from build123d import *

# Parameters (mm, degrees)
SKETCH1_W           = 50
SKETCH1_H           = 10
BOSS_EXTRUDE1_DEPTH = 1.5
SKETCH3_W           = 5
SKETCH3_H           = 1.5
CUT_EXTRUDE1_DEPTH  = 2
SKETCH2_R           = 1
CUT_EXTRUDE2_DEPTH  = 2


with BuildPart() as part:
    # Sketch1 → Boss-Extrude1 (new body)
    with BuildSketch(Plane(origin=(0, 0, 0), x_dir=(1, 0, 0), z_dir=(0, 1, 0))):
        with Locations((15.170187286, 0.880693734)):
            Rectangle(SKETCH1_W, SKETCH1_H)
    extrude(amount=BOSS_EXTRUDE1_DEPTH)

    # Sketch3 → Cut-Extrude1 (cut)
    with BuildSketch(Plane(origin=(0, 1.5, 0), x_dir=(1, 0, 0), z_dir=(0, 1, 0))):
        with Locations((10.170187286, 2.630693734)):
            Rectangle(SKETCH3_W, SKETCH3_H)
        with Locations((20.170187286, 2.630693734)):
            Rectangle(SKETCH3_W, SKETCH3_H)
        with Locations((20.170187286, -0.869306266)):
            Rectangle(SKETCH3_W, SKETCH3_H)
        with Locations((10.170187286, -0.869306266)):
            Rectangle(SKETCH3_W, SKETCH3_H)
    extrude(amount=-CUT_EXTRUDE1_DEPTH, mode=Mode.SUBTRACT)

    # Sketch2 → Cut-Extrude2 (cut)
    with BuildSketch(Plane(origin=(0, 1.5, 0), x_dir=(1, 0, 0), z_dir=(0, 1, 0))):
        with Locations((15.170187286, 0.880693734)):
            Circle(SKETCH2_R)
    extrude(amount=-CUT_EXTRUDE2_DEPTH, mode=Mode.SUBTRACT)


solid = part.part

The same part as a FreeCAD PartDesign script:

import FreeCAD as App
import Part
import Sketcher
Q = App.Units.Quantity

doc = App.newDocument("Part")
body = doc.addObject("PartDesign::Body", "Body")

sketch1 = body.newObject("Sketcher::SketchObject", "Sketch")
sketch1.AttachmentSupport = (doc.getObject("XZ_Plane"), [""])
sketch1.MapMode = "FlatFace"
sketch1.addGeometry(Part.LineSegment(App.Vector(-10, -6, 0), App.Vector(-10, 4, 0)), False)
sketch1.addGeometry(Part.LineSegment(App.Vector(-10, 4, 0), App.Vector(40, 4, 0)), False)
sketch1.addGeometry(Part.LineSegment(App.Vector(40, 4, 0), App.Vector(40, -6, 0)), False)
sketch1.addGeometry(Part.LineSegment(App.Vector(40, -6, 0), App.Vector(-10, -6, 0)), False)
sketch1.addConstraint(Sketcher.Constraint("Coincident", 0, 2, 1, 1))
sketch1.addConstraint(Sketcher.Constraint("Coincident", 1, 2, 2, 1))
sketch1.addConstraint(Sketcher.Constraint("Coincident", 2, 2, 3, 1))
sketch1.addConstraint(Sketcher.Constraint("Coincident", 3, 2, 0, 1))
sketch1.addConstraint(Sketcher.Constraint("Vertical", 0))
sketch1.addConstraint(Sketcher.Constraint("Horizontal", 1))
sketch1.addConstraint(Sketcher.Constraint("Vertical", 2))
sketch1.addConstraint(Sketcher.Constraint("Horizontal", 3))
sketch1.addConstraint(Sketcher.Constraint("DistanceX", 1, 1, 1, 2, Q("50 mm")))
sketch1.addConstraint(Sketcher.Constraint("DistanceY", 0, 1, 0, 2, Q("10 mm")))
sketch1.addConstraint(Sketcher.Constraint("DistanceX", 0, 2, -1, 1, Q("9.829813 mm")))
sketch1.addConstraint(Sketcher.Constraint("DistanceY", -1, 1, 0, 2, Q("4.119306 mm")))
pad1 = body.newObject("PartDesign::Pad", "Pad")
pad1.Profile = sketch1
pad1.Length = 1.5
pad1.Reversed = True

sketch2 = body.newObject("Sketcher::SketchObject", "Sketch001")
sketch2.AttachmentSupport = (doc.getObject("XZ_Plane"), [""])
sketch2.MapMode = "FlatFace"
sketch2.AttachmentOffset = App.Placement(App.Vector(0, 0, -1.5), App.Rotation())
sketch2.addGeometry(Part.LineSegment(App.Vector(7.7, -3.4, 0), App.Vector(7.7, -1.9, 0)), False)
sketch2.addGeometry(Part.LineSegment(App.Vector(7.7, -1.9, 0), App.Vector(12.7, -1.9, 0)), False)
sketch2.addGeometry(Part.LineSegment(App.Vector(12.7, -1.9, 0), App.Vector(12.7, -3.4, 0)), False)
sketch2.addGeometry(Part.LineSegment(App.Vector(12.7, -3.4, 0), App.Vector(7.7, -3.4, 0)), False)
sketch2.addGeometry(Part.LineSegment(App.Vector(17.7, -3.4, 0), App.Vector(17.7, -1.9, 0)), False)
sketch2.addGeometry(Part.LineSegment(App.Vector(17.7, -1.9, 0), App.Vector(22.7, -1.9, 0)), False)
sketch2.addGeometry(Part.LineSegment(App.Vector(22.7, -1.9, 0), App.Vector(22.7, -3.4, 0)), False)
sketch2.addGeometry(Part.LineSegment(App.Vector(22.7, -3.4, 0), App.Vector(17.7, -3.4, 0)), False)
sketch2.addGeometry(Part.LineSegment(App.Vector(17.7, 0.1, 0), App.Vector(17.7, 1.6, 0)), False)
sketch2.addGeometry(Part.LineSegment(App.Vector(17.7, 1.6, 0), App.Vector(22.7, 1.6, 0)), False)
sketch2.addGeometry(Part.LineSegment(App.Vector(22.7, 1.6, 0), App.Vector(22.7, 0.1, 0)), False)
sketch2.addGeometry(Part.LineSegment(App.Vector(22.7, 0.1, 0), App.Vector(17.7, 0.1, 0)), False)
sketch2.addGeometry(Part.LineSegment(App.Vector(7.7, 0.1, 0), App.Vector(7.7, 1.6, 0)), False)
sketch2.addGeometry(Part.LineSegment(App.Vector(7.7, 1.6, 0), App.Vector(12.7, 1.6, 0)), False)
sketch2.addGeometry(Part.LineSegment(App.Vector(12.7, 1.6, 0), App.Vector(12.7, 0.1, 0)), False)
sketch2.addGeometry(Part.LineSegment(App.Vector(12.7, 0.1, 0), App.Vector(7.7, 0.1, 0)), False)
sketch2.addConstraint(Sketcher.Constraint("Coincident", 0, 2, 1, 1))
sketch2.addConstraint(Sketcher.Constraint("Coincident", 1, 2, 2, 1))
sketch2.addConstraint(Sketcher.Constraint("Coincident", 2, 2, 3, 1))
sketch2.addConstraint(Sketcher.Constraint("Coincident", 3, 2, 0, 1))
sketch2.addConstraint(Sketcher.Constraint("Coincident", 4, 2, 5, 1))
sketch2.addConstraint(Sketcher.Constraint("Coincident", 5, 2, 6, 1))
sketch2.addConstraint(Sketcher.Constraint("Coincident", 6, 2, 7, 1))
sketch2.addConstraint(Sketcher.Constraint("Coincident", 7, 2, 4, 1))
sketch2.addConstraint(Sketcher.Constraint("Coincident", 8, 2, 9, 1))
sketch2.addConstraint(Sketcher.Constraint("Coincident", 9, 2, 10, 1))
sketch2.addConstraint(Sketcher.Constraint("Coincident", 10, 2, 11, 1))
sketch2.addConstraint(Sketcher.Constraint("Coincident", 11, 2, 8, 1))
sketch2.addConstraint(Sketcher.Constraint("Coincident", 12, 2, 13, 1))
sketch2.addConstraint(Sketcher.Constraint("Coincident", 13, 2, 14, 1))
sketch2.addConstraint(Sketcher.Constraint("Coincident", 14, 2, 15, 1))
sketch2.addConstraint(Sketcher.Constraint("Coincident", 15, 2, 12, 1))
sketch2.addConstraint(Sketcher.Constraint("Vertical", 0))
sketch2.addConstraint(Sketcher.Constraint("Horizontal", 1))
sketch2.addConstraint(Sketcher.Constraint("Vertical", 2))
sketch2.addConstraint(Sketcher.Constraint("Horizontal", 3))
sketch2.addConstraint(Sketcher.Constraint("Vertical", 4))
sketch2.addConstraint(Sketcher.Constraint("Horizontal", 5))
sketch2.addConstraint(Sketcher.Constraint("Vertical", 6))
sketch2.addConstraint(Sketcher.Constraint("Horizontal", 7))
sketch2.addConstraint(Sketcher.Constraint("Vertical", 8))
sketch2.addConstraint(Sketcher.Constraint("Horizontal", 9))
sketch2.addConstraint(Sketcher.Constraint("Vertical", 10))
sketch2.addConstraint(Sketcher.Constraint("Horizontal", 11))
sketch2.addConstraint(Sketcher.Constraint("Vertical", 12))
sketch2.addConstraint(Sketcher.Constraint("Horizontal", 13))
sketch2.addConstraint(Sketcher.Constraint("Vertical", 14))
sketch2.addConstraint(Sketcher.Constraint("Horizontal", 15))
sketch2.addConstraint(Sketcher.Constraint("Horizontal", 1, 2, 4, 2))
sketch2.addConstraint(Sketcher.Constraint("Horizontal", 3, 2, 6, 2))
sketch2.addConstraint(Sketcher.Constraint("Horizontal", 9, 2, 12, 2))
sketch2.addConstraint(Sketcher.Constraint("Horizontal", 11, 2, 14, 2))
sketch2.addConstraint(Sketcher.Constraint("Vertical", 7, 2, 8, 2))
sketch2.addConstraint(Sketcher.Constraint("Vertical", 6, 2, 9, 2))
sketch2.addConstraint(Sketcher.Constraint("Vertical", 3, 2, 12, 2))
sketch2.addConstraint(Sketcher.Constraint("Vertical", 2, 2, 13, 2))
sketch2.addConstraint(Sketcher.Constraint("Equal", 3, 5))
sketch2.addConstraint(Sketcher.Constraint("Equal", 6, 8))
sketch2.addConstraint(Sketcher.Constraint("DistanceX", 1, 1, 1, 2, Q("5 mm")))
sketch2.addConstraint(Sketcher.Constraint("DistanceY", 0, 1, 0, 2, Q("1.5 mm")))
sketch2.addConstraint(Sketcher.Constraint("DistanceX", 1, 2, 4, 2, Q("5 mm")))
sketch2.addConstraint(Sketcher.Constraint("DistanceY", 7, 2, 8, 2, Q("5 mm")))
sketch2.addConstraint(Sketcher.Constraint("DistanceX", -1, 1, 0, 2, Q("7.670187 mm")))
sketch2.addConstraint(Sketcher.Constraint("DistanceY", 0, 2, -1, 1, Q("1.880694 mm")))
pocket1 = body.newObject("PartDesign::Pocket", "Pocket")
pocket1.Profile = sketch2
pocket1.Length = 2
pocket1.Reversed = True

sketch3 = body.newObject("Sketcher::SketchObject", "Sketch002")
sketch3.AttachmentSupport = (doc.getObject("XZ_Plane"), [""])
sketch3.MapMode = "FlatFace"
sketch3.AttachmentOffset = App.Placement(App.Vector(0, 0, -1.5), App.Rotation())
sketch3.addGeometry(Part.Circle(App.Vector(15.2, -0.9, 0), App.Vector(0, 0, 1), 1), False)
sketch3.addConstraint(Sketcher.Constraint("Diameter", 0, Q("2 mm")))
sketch3.addConstraint(Sketcher.Constraint("DistanceX", -1, 1, 0, 3, Q("15.170187 mm")))
sketch3.addConstraint(Sketcher.Constraint("DistanceY", 0, 3, -1, 1, Q("0.880694 mm")))
pocket2 = body.newObject("PartDesign::Pocket", "Pocket001")
pocket2.Profile = sketch3
pocket2.Length = 2
pocket2.Reversed = True

doc.recompute()
